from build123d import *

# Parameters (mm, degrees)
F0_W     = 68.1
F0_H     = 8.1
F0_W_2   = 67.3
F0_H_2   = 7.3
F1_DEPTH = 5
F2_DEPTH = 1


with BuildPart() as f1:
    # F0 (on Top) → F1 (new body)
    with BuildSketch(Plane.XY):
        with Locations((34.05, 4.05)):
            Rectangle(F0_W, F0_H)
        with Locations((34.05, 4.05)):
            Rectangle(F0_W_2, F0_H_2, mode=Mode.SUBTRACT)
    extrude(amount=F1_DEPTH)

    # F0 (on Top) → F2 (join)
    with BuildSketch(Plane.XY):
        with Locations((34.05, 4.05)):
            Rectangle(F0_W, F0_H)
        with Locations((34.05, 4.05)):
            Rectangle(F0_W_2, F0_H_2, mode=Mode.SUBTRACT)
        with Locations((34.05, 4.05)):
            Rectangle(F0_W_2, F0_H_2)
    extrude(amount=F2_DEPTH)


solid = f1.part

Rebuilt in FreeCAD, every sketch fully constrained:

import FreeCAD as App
import Part
import Sketcher
from FreeCAD import Vector
Q = App.Units.Quantity

doc = App.newDocument("Part")
body = doc.addObject("PartDesign::Body", "Body")

# Sketch on XY plane
sketch1 = body.newObject("Sketcher::SketchObject", "Sketch")
sketch1.AttachmentSupport = (doc.getObject("XY_Plane"), [""])
sketch1.MapMode = "FlatFace"
sketch1.addGeometry([
    Part.LineSegment(Vector(0, 8, 0), Vector(0, 0, 0)),  # 0
    Part.LineSegment(Vector(0, 0, 0), Vector(68, 0, 0)),  # 1
    Part.LineSegment(Vector(68, 0, 0), Vector(68, 8, 0)),  # 2
    Part.LineSegment(Vector(68, 8, 0), Vector(0, 8, 0)),  # 3
    Part.LineSegment(Vector(68, 0, 0), Vector(0, 0, 0)),  # 4
    Part.LineSegment(Vector(0, 0, 0), Vector(0, 8, 0)),  # 5
    Part.LineSegment(Vector(0, 8, 0), Vector(68, 8, 0)),  # 6
    Part.LineSegment(Vector(68, 8, 0), Vector(68, 0, 0)),  # 7
], False)
sketch1.addConstraint([
    Sketcher.Constraint("Coincident", 0, 2, 1, 1),
    Sketcher.Constraint("Coincident", 1, 2, 2, 1),
    Sketcher.Constraint("Coincident", 2, 2, 3, 1),
    Sketcher.Constraint("Coincident", 3, 2, 0, 1),
    Sketcher.Constraint("Coincident", 4, 2, 5, 1),
    Sketcher.Constraint("Coincident", 5, 2, 6, 1),
    Sketcher.Constraint("Coincident", 6, 2, 7, 1),
    Sketcher.Constraint("Coincident", 7, 2, 4, 1),
    Sketcher.Constraint("Vertical", 0),
    Sketcher.Constraint("Horizontal", 1),
    Sketcher.Constraint("Vertical", 2),
    Sketcher.Constraint("Horizontal", 3),
    Sketcher.Constraint("Horizontal", 4),
    Sketcher.Constraint("Vertical", 5),
    Sketcher.Constraint("Horizontal", 6),
    Sketcher.Constraint("Vertical", 7),
    Sketcher.Constraint("Coincident", 0, 2, -1, 1),
    Sketcher.Constraint("DistanceX", 1, 1, 1, 2, Q("68.1 mm")),
    Sketcher.Constraint("DistanceX", 4, 2, 4, 1, Q("67.3 mm")),
    Sketcher.Constraint("DistanceY", 0, 2, 0, 1, Q("8.1 mm")),
    Sketcher.Constraint("DistanceY", 5, 1, 5, 2, Q("7.3 mm")),
    Sketcher.Constraint("DistanceX", -1, 1, 4, 2, Q("0.4 mm")),
    Sketcher.Constraint("DistanceY", -1, 1, 4, 2, Q("0.4 mm")),
])
pad1 = body.newObject("PartDesign::Pad", "Pad")
pad1.Profile = sketch1
pad1.Length = 5

# Sketch on XY plane
sketch2 = body.newObject("Sketcher::SketchObject", "Sketch001")
sketch2.AttachmentSupport = (doc.getObject("XY_Plane"), [""])
sketch2.MapMode = "FlatFace"
sketch2.addGeometry([
    Part.LineSegment(Vector(0, 8, 0), Vector(0, 0, 0)),
    Part.LineSegment(Vector(0, 0, 0), Vector(68, 0, 0)),
    Part.LineSegment(Vector(68, 0, 0), Vector(68, 8, 0)),
    Part.LineSegment(Vector(68, 8, 0), Vector(0, 8, 0)),
], False)
sketch2.addConstraint([
    Sketcher.Constraint("Coincident", 0, 2, 1, 1),
    Sketcher.Constraint("Coincident", 1, 2, 2, 1),
    Sketcher.Constraint("Coincident", 2, 2, 3, 1),
    Sketcher.Constraint("Coincident", 3, 2, 0, 1),
    Sketcher.Constraint("Vertical", 0),
    Sketcher.Constraint("Horizontal", 1),
    Sketcher.Constraint("Vertical", 2),
    Sketcher.Constraint("Horizontal", 3),
    Sketcher.Constraint("Coincident", 0, 2, -1, 1),
    Sketcher.Constraint("DistanceX", 1, 1, 1, 2, Q("68.1 mm")),
    Sketcher.Constraint("DistanceY", 0, 2, 0, 1, Q("8.1 mm")),
])
pad2 = body.newObject("PartDesign::Pad", "Pad001")
pad2.Profile = sketch2
pad2.Length = 1

doc.recompute()
